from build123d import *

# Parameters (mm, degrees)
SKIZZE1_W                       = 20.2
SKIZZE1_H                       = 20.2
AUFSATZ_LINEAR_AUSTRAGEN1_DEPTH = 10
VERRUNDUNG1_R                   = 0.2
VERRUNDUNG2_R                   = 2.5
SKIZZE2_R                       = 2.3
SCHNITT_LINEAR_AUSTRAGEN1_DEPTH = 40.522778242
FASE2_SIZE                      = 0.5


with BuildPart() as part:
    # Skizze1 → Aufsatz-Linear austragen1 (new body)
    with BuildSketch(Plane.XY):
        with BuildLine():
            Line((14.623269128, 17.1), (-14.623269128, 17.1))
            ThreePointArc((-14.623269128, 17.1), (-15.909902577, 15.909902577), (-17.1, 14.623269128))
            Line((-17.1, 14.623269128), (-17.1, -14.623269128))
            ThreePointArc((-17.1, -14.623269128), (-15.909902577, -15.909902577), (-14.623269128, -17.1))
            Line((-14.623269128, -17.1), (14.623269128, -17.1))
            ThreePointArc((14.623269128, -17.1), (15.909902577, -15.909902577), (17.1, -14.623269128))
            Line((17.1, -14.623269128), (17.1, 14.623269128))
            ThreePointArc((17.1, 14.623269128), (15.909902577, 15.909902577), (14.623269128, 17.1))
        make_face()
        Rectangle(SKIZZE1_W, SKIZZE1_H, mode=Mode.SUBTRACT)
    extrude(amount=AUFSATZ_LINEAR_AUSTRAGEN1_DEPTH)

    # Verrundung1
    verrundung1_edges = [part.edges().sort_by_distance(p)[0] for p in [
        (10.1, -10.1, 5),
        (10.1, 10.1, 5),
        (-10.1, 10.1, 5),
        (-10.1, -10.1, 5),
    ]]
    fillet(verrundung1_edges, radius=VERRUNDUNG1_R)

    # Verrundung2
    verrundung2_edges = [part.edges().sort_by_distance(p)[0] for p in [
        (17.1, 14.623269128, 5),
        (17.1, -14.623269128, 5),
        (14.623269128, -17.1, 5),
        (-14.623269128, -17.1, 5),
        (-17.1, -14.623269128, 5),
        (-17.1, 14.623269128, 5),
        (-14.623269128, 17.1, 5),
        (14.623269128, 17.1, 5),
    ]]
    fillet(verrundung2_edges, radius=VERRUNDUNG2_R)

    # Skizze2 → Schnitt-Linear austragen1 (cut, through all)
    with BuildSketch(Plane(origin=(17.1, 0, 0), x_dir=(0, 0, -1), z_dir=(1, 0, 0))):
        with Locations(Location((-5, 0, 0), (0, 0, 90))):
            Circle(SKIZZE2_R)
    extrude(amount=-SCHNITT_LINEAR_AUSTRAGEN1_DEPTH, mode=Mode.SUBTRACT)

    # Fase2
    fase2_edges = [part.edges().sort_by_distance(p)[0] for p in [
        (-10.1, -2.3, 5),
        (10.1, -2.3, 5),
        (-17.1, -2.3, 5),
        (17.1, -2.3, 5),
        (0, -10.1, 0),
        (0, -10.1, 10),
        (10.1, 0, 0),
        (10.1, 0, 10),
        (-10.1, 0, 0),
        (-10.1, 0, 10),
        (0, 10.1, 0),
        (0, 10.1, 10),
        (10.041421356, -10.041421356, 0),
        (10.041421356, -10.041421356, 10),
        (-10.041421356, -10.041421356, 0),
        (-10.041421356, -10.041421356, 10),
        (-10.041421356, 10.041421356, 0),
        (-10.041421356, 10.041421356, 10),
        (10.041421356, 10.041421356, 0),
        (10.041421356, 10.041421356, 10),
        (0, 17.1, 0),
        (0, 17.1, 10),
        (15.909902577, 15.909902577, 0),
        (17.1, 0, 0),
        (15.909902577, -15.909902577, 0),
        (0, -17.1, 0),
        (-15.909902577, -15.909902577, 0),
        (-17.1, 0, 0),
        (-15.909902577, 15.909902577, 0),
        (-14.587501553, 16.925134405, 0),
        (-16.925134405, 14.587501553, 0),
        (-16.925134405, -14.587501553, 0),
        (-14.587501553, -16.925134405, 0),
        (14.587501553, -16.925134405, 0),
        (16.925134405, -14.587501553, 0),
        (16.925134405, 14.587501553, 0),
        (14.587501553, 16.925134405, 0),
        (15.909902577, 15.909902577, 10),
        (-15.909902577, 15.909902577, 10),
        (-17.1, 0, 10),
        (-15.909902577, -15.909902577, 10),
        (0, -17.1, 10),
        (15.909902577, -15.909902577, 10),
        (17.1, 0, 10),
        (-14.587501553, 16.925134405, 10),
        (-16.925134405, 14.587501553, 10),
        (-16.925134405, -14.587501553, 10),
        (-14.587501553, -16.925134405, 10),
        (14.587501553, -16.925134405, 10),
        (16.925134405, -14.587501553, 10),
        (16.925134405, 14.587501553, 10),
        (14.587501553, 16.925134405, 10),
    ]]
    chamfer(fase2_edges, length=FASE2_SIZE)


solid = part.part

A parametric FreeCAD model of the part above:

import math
import FreeCAD as App
import Part
import Sketcher
from FreeCAD import Vector
Q = App.Units.Quantity


def edges_at(feature, points):
    """Names of the edges that pass closest to the given points."""
    edges = feature.Shape.Edges
    near = lambda p: min(range(len(edges)), key=lambda i: edges[i].distToShape(Part.Vertex(*p))[0])
    return sorted({f"Edge{near(p) + 1}" for p in points})

doc = App.newDocument("Part")
body = doc.addObject("PartDesign::Body", "Body")

sketch1 = body.newObject("Sketcher::SketchObject", "Sketch")
sketch1.AttachmentSupport = (doc.getObject("XY_Plane"), [""])
sketch1.MapMode = "FlatFace"
sketch1.addGeometry([
    Part.LineSegment(Vector(14.6, 17.1, 0), Vector(-14.6, 17.1, 0)),
    Part.ArcOfCircle(Part.Circle(Vector(0, 0, 0), Vector(0, 0, 1), 22.5), math.radians(130.54), math.radians(139.46)),
    Part.LineSegment(Vector(-17.1, 14.6, 0), Vector(-17.1, -14.6, 0)),
    Part.ArcOfCircle(Part.Circle(Vector(0, 0, 0), Vector(0, 0, 1), 22.5), math.radians(-139.46), math.radians(-130.54)),
    Part.LineSegment(Vector(-14.6, -17.1, 0), Vector(14.6, -17.1, 0)),
    Part.ArcOfCircle(Part.Circle(Vector(0, 0, 0), Vector(0, 0, 1), 22.5), math.radians(-49.46), math.radians(-40.54)),
    Part.LineSegment(Vector(17.1, -14.6, 0), Vector(17.1, 14.6, 0)),
    Part.ArcOfCircle(Part.Circle(Vector(0, 0, 0), Vector(0, 0, 1), 22.5), math.radians(40.54), math.radians(49.46)),
    Part.LineSegment(Vector(10.1, -10.1, 0), Vector(-10.1, -10.1, 0)),
    Part.LineSegment(Vector(-10.1, -10.1, 0), Vector(-10.1, 10.1, 0)),
    Part.LineSegment(Vector(-10.1, 10.1, 0), Vector(10.1, 10.1, 0)),
    Part.LineSegment(Vector(10.1, 10.1, 0), Vector(10.1, -10.1, 0)),
], False)
sketch1.addConstraint([
    Sketcher.Constraint("Coincident", 0, 2, 1, 1),
    Sketcher.Constraint("Coincident", 1, 2, 2, 1),
    Sketcher.Constraint("Coincident", 2, 2, 3, 1),
    Sketcher.Constraint("Coincident", 3, 2, 4, 1),
    Sketcher.Constraint("Coincident", 4, 2, 5, 1),
    Sketcher.Constraint("Coincident", 5, 2, 6, 1),
    Sketcher.Constraint("Coincident", 6, 2, 7, 1),
    Sketcher.Constraint("Coincident", 7, 2, 0, 1),
    Sketcher.Constraint("Coincident", 8, 2, 9, 1),
    Sketcher.Constraint("Coincident", 9, 2, 10, 1),
    Sketcher.Constraint("Coincident", 10, 2, 11, 1),
    Sketcher.Constraint("Coincident", 11, 2, 8, 1),
    Sketcher.Constraint("Horizontal", 0),
    Sketcher.Constraint("Vertical", 2),
    Sketcher.Constraint("Horizontal", 4),
    Sketcher.Constraint("Vertical", 6),
    Sketcher.Constraint("Horizontal", 8),
    Sketcher.Constraint("Vertical", 9),
    Sketcher.Constraint("Horizontal", 10),
    Sketcher.Constraint("Vertical", 11),
    Sketcher.Constraint("Coincident", 1, 3, -1, 1),
    Sketcher.Constraint("Coincident", 3, 3, -1, 1),
    Sketcher.Constraint("Coincident", 5, 3, -1, 1),
    Sketcher.Constraint("Coincident", 7, 3, -1, 1),
    Sketcher.Constraint("Equal", 1, 3),
    Sketcher.Constraint("Equal", 3, 5),
    Sketcher.Constraint("Equal", 5, 7),
    Sketcher.Constraint("Symmetric", 8, 2, 10, 2, -1, 1),
    Sketcher.Constraint("Horizontal", 2, 2, 5, 2),
    Sketcher.Constraint("Vertical", 0, 2, 3, 2),
    Sketcher.Constraint("Equal", 4, 2),
    Sketcher.Constraint("Equal", 10, 9),
    Sketcher.Constraint("Radius", 1, Q("22.5 mm")),
    Sketcher.Constraint("DistanceX", 8, 2, 8, 1, Q("20.2 mm")),
    Sketcher.Constraint("DistanceY", 3, 2, 8, 2, Q("7 mm")),
])
pad1 = body.newObject("PartDesign::Pad", "Pad")
pad1.Profile = sketch1
pad1.Length = 10
doc.recompute()

fillet = body.newObject("PartDesign::Fillet", "Fillet")
fillet.Base = (pad1, edges_at(pad1, [
    (10.1, -10.1, 5),
    (10.1, 10.1, 5),
    (-10.1, 10.1, 5),
    (-10.1, -10.1, 5),
]))
fillet.Radius = 0.2
doc.recompute()

fillet2 = body.newObject("PartDesign::Fillet", "Fillet001")
fillet2.Base = (fillet, edges_at(fillet, [
    (17.1, 14.623, 5),
    (17.1, -14.623, 5),
    (14.623, -17.1, 5),
    (-14.623, -17.1, 5),
    (-17.1, -14.623, 5),
    (-17.1, 14.623, 5),
    (-14.623, 17.1, 5),
    (14.623, 17.1, 5),
]))
fillet2.Radius = 2.5

sketch2 = body.newObject("Sketcher::SketchObject", "Sketch001")
sketch2.AttachmentSupport = (doc.getObject("YZ_Plane"), [""])
sketch2.MapMode = "FlatFace"
sketch2.AttachmentOffset = App.Placement(Vector(0, 0, 17.1), App.Rotation())
sketch2.addGeometry(Part.Circle(Vector(0, 5, 0), Vector(0, 0, 1), 2.3), False)
sketch2.addConstraint([
    Sketcher.Constraint("PointOnObject", 0, 3, -2),
    Sketcher.Constraint("Diameter", 0, Q("4.6 mm")),
    Sketcher.Constraint("DistanceY", -1, 1, 0, 3, Q("5 mm")),
])
pocket1 = body.newObject("PartDesign::Pocket", "Pocket")
pocket1.Profile = sketch2
pocket1.Type = "ThroughAll"
doc.recompute()

chamfer = body.newObject("PartDesign::Chamfer", "Chamfer")
chamfer.Base = (pocket1, edges_at(pocket1, [
    (-10.1, -2.3, 5),
    (10.1, -2.3, 5),
    (-17.1, -2.3, 5),
    (17.1, -2.3, 5),
    (0, -10.1, 0),
    (0, -10.1, 10),
    (10.1, 0, 0),
    (10.1, 0, 10),
    (-10.1, 0, 0),
    (-10.1, 0, 10),
    (0, 10.1, 0),
    (0, 10.1, 10),
    (10.041, -10.041, 0),
    (10.041, -10.041, 10),
    (-10.041, -10.041, 0),
    (-10.041, -10.041, 10),
    (-10.041, 10.041, 0),
    (-10.041, 10.041, 10),
    (10.041, 10.041, 0),
    (10.041, 10.041, 10),
    (0, 17.1, 0),
    (0, 17.1, 10),
    (15.91, 15.91, 0),
    (17.1, 0, 0),
    (15.91, -15.91, 0),
    (0, -17.1, 0),
    (-15.91, -15.91, 0),
    (-17.1, 0, 0),
    (-15.91, 15.91, 0),
    (-14.588, 16.925, 0),
    (-16.925, 14.588, 0),
    (-16.925, -14.588, 0),
    (-14.588, -16.925, 0),
    (14.588, -16.925, 0),
    (16.925, -14.588, 0),
    (16.925, 14.588, 0),
    (14.588, 16.925, 0),
    (15.91, 15.91, 10),
    (-15.91, 15.91, 10),
    (-17.1, 0, 10),
    (-15.91, -15.91, 10),
    (0, -17.1, 10),
    (15.91, -15.91, 10),
    (17.1, 0, 10),
    (-14.588, 16.925, 10),
    (-16.925, 14.588, 10),
    (-16.925, -14.588, 10),
    (-14.588, -16.925, 10),
    (14.588, -16.925, 10),
    (16.925, -14.588, 10),
    (16.925, 14.588, 10),
    (14.588, 16.925, 10),
]))
chamfer.Size = 0.5

doc.recompute()
